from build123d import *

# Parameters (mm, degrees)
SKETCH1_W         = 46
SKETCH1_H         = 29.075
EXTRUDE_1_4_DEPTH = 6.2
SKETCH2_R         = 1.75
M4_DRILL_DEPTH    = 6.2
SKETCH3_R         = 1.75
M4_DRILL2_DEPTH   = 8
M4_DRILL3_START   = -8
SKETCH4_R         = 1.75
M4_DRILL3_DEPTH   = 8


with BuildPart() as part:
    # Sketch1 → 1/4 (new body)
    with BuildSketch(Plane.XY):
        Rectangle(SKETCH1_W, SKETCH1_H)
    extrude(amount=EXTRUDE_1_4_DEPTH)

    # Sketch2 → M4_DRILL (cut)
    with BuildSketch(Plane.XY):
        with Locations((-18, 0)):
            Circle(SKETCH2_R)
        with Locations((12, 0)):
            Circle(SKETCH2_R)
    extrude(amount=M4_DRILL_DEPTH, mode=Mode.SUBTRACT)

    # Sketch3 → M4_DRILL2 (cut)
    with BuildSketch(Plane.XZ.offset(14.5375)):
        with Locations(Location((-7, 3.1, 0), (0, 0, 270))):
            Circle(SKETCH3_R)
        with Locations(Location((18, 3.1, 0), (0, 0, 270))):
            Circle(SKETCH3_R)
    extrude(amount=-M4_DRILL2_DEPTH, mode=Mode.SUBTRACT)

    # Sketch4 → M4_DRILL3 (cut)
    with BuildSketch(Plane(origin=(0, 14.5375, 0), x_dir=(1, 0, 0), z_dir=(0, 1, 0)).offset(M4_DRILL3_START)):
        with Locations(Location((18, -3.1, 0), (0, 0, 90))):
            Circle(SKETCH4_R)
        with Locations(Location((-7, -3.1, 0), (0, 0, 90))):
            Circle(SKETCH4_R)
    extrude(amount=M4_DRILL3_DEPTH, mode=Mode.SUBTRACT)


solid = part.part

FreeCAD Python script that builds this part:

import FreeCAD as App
import Part
import Sketcher
Q = App.Units.Quantity

doc = App.newDocument("Part")
body = doc.addObject("PartDesign::Body", "Body")

sketch1 = doc.addObject("Sketcher::SketchObject", "Sketch")
body.addObject(sketch1)
sketch1.AttachmentSupport = (doc.XY_Plane, [""])
sketch1.MapMode = "FlatFace"
sketch1.addGeometry(Part.LineSegment(App.Vector(-23, 15, 0), App.Vector(-23, -15, 0)), False)
sketch1.addGeometry(Part.LineSegment(App.Vector(-23, -15, 0), App.Vector(23, -15, 0)), False)
sketch1.addGeometry(Part.LineSegment(App.Vector(23, -15, 0), App.Vector(23, 15, 0)), False)
sketch1.addGeometry(Part.LineSegment(App.Vector(23, 15, 0), App.Vector(-23, 15, 0)), False)
sketch1.addConstraint(Sketcher.Constraint("Coincident", 0, 2, 1, 1))
sketch1.addConstraint(Sketcher.Constraint("Coincident", 1, 2, 2, 1))
sketch1.addConstraint(Sketcher.Constraint("Coincident", 2, 2, 3, 1))
sketch1.addConstraint(Sketcher.Constraint("Coincident", 3, 2, 0, 1))
sketch1.addConstraint(Sketcher.Constraint("Vertical", 0))
sketch1.addConstraint(Sketcher.Constraint("Horizontal", 1))
sketch1.addConstraint(Sketcher.Constraint("Vertical", 2))
sketch1.addConstraint(Sketcher.Constraint("Horizontal", 3))
sketch1.addConstraint(Sketcher.Constraint("Symmetric", 0, 2, 2, 2, -1, 1))
sketch1.addConstraint(Sketcher.Constraint("DistanceX", 1, 1, 1, 2, Q("46 mm")))
sketch1.addConstraint(Sketcher.Constraint("DistanceY", 0, 2, 0, 1, Q("29.075 mm")))
pad1 = doc.addObject("PartDesign::Pad", "Pad")
body.addObject(pad1)
pad1.Profile = sketch1
pad1.Length = 6.2

sketch2 = doc.addObject("Sketcher::SketchObject", "Sketch001")
body.addObject(sketch2)
sketch2.AttachmentSupport = (doc.XY_Plane, [""])
sketch2.MapMode = "FlatFace"
sketch2.addGeometry(Part.Circle(App.Vector(-18, 0, 0), App.Vector(0, 0, 1), 1.8), False)
sketch2.addGeometry(Part.Circle(App.Vector(12, 0, 0), App.Vector(0, 0, 1), 1.8), False)
sketch2.addConstraint(Sketcher.Constraint("Equal", 0, 1))
sketch2.addConstraint(Sketcher.Constraint("PointOnObject", 0, 3, -1))
sketch2.addConstraint(Sketcher.Constraint("PointOnObject", 1, 3, -1))
sketch2.addConstraint(Sketcher.Constraint("Diameter", 0, Q("3.5 mm")))
sketch2.addConstraint(Sketcher.Constraint("DistanceX", 0, 3, -1, 1, Q("18 mm")))
sketch2.addConstraint(Sketcher.Constraint("DistanceX", -1, 1, 1, 3, Q("12 mm")))
pocket1 = doc.addObject("PartDesign::Pocket", "Pocket")
body.addObject(pocket1)
pocket1.Profile = sketch2
pocket1.Length = 6.2
pocket1.Reversed = True

sketch3 = doc.addObject("Sketcher::SketchObject", "Sketch002")
body.addObject(sketch3)
sketch3.AttachmentSupport = (doc.XZ_Plane, [""])
sketch3.MapMode = "FlatFace"
sketch3.AttachmentOffset = App.Placement(App.Vector(0, 0, 14.5375), App.Rotation())
sketch3.addGeometry(Part.Circle(App.Vector(-7, 3.1, 0), App.Vector(0, 0, 1), 1.8), False)
sketch3.addGeometry(Part.Circle(App.Vector(18, 3.1, 0), App.Vector(0, 0, 1), 1.8), False)
sketch3.addConstraint(Sketcher.Constraint("Equal", 0, 1))
sketch3.addConstraint(Sketcher.Constraint("Horizontal", 0, 3, 1, 3))
sketch3.addConstraint(Sketcher.Constraint("Diameter", 0, Q("3.5 mm")))
sketch3.addConstraint(Sketcher.Constraint("DistanceX", 0, 3, -1, 1, Q("7 mm")))
sketch3.addConstraint(Sketcher.Constraint("DistanceX", -1, 1, 1, 3, Q("18 mm")))
sketch3.addConstraint(Sketcher.Constraint("DistanceY", -1, 1, 0, 3, Q("3.1 mm")))
pocket2 = doc.addObject("PartDesign::Pocket", "Pocket001")
body.addObject(pocket2)
pocket2.Profile = sketch3
pocket2.Length = 8

sketch4 = doc.addObject("Sketcher::SketchObject", "Sketch003")
body.addObject(sketch4)
sketch4.AttachmentSupport = (doc.XZ_Plane, [""])
sketch4.MapMode = "FlatFace"
sketch4.AttachmentOffset = App.Placement(App.Vector(0, 0, -6.5375), App.Rotation())
sketch4.addGeometry(Part.Circle(App.Vector(18, 3.1, 0), App.Vector(0, 0, 1), 1.8), False)
sketch4.addGeometry(Part.Circle(App.Vector(-7, 3.1, 0), App.Vector(0, 0, 1), 1.8), False)
sketch4.addConstraint(Sketcher.Constraint("Equal", 0, 1))
sketch4.addConstraint(Sketcher.Constraint("Horizontal", 0, 3, 1, 3))
sketch4.addConstraint(Sketcher.Constraint("Diameter", 0, Q("3.5 mm")))
sketch4.addConstraint(Sketcher.Constraint("DistanceX", -1, 1, 0, 3, Q("18 mm")))
sketch4.addConstraint(Sketcher.Constraint("DistanceX", 1, 3, -1, 1, Q("7 mm")))
sketch4.addConstraint(Sketcher.Constraint("DistanceY", -1, 1, 0, 3, Q("3.1 mm")))
pocket3 = doc.addObject("PartDesign::Pocket", "Pocket002")
body.addObject(pocket3)
pocket3.Profile = sketch4
pocket3.Length = 8

doc.recompute()
